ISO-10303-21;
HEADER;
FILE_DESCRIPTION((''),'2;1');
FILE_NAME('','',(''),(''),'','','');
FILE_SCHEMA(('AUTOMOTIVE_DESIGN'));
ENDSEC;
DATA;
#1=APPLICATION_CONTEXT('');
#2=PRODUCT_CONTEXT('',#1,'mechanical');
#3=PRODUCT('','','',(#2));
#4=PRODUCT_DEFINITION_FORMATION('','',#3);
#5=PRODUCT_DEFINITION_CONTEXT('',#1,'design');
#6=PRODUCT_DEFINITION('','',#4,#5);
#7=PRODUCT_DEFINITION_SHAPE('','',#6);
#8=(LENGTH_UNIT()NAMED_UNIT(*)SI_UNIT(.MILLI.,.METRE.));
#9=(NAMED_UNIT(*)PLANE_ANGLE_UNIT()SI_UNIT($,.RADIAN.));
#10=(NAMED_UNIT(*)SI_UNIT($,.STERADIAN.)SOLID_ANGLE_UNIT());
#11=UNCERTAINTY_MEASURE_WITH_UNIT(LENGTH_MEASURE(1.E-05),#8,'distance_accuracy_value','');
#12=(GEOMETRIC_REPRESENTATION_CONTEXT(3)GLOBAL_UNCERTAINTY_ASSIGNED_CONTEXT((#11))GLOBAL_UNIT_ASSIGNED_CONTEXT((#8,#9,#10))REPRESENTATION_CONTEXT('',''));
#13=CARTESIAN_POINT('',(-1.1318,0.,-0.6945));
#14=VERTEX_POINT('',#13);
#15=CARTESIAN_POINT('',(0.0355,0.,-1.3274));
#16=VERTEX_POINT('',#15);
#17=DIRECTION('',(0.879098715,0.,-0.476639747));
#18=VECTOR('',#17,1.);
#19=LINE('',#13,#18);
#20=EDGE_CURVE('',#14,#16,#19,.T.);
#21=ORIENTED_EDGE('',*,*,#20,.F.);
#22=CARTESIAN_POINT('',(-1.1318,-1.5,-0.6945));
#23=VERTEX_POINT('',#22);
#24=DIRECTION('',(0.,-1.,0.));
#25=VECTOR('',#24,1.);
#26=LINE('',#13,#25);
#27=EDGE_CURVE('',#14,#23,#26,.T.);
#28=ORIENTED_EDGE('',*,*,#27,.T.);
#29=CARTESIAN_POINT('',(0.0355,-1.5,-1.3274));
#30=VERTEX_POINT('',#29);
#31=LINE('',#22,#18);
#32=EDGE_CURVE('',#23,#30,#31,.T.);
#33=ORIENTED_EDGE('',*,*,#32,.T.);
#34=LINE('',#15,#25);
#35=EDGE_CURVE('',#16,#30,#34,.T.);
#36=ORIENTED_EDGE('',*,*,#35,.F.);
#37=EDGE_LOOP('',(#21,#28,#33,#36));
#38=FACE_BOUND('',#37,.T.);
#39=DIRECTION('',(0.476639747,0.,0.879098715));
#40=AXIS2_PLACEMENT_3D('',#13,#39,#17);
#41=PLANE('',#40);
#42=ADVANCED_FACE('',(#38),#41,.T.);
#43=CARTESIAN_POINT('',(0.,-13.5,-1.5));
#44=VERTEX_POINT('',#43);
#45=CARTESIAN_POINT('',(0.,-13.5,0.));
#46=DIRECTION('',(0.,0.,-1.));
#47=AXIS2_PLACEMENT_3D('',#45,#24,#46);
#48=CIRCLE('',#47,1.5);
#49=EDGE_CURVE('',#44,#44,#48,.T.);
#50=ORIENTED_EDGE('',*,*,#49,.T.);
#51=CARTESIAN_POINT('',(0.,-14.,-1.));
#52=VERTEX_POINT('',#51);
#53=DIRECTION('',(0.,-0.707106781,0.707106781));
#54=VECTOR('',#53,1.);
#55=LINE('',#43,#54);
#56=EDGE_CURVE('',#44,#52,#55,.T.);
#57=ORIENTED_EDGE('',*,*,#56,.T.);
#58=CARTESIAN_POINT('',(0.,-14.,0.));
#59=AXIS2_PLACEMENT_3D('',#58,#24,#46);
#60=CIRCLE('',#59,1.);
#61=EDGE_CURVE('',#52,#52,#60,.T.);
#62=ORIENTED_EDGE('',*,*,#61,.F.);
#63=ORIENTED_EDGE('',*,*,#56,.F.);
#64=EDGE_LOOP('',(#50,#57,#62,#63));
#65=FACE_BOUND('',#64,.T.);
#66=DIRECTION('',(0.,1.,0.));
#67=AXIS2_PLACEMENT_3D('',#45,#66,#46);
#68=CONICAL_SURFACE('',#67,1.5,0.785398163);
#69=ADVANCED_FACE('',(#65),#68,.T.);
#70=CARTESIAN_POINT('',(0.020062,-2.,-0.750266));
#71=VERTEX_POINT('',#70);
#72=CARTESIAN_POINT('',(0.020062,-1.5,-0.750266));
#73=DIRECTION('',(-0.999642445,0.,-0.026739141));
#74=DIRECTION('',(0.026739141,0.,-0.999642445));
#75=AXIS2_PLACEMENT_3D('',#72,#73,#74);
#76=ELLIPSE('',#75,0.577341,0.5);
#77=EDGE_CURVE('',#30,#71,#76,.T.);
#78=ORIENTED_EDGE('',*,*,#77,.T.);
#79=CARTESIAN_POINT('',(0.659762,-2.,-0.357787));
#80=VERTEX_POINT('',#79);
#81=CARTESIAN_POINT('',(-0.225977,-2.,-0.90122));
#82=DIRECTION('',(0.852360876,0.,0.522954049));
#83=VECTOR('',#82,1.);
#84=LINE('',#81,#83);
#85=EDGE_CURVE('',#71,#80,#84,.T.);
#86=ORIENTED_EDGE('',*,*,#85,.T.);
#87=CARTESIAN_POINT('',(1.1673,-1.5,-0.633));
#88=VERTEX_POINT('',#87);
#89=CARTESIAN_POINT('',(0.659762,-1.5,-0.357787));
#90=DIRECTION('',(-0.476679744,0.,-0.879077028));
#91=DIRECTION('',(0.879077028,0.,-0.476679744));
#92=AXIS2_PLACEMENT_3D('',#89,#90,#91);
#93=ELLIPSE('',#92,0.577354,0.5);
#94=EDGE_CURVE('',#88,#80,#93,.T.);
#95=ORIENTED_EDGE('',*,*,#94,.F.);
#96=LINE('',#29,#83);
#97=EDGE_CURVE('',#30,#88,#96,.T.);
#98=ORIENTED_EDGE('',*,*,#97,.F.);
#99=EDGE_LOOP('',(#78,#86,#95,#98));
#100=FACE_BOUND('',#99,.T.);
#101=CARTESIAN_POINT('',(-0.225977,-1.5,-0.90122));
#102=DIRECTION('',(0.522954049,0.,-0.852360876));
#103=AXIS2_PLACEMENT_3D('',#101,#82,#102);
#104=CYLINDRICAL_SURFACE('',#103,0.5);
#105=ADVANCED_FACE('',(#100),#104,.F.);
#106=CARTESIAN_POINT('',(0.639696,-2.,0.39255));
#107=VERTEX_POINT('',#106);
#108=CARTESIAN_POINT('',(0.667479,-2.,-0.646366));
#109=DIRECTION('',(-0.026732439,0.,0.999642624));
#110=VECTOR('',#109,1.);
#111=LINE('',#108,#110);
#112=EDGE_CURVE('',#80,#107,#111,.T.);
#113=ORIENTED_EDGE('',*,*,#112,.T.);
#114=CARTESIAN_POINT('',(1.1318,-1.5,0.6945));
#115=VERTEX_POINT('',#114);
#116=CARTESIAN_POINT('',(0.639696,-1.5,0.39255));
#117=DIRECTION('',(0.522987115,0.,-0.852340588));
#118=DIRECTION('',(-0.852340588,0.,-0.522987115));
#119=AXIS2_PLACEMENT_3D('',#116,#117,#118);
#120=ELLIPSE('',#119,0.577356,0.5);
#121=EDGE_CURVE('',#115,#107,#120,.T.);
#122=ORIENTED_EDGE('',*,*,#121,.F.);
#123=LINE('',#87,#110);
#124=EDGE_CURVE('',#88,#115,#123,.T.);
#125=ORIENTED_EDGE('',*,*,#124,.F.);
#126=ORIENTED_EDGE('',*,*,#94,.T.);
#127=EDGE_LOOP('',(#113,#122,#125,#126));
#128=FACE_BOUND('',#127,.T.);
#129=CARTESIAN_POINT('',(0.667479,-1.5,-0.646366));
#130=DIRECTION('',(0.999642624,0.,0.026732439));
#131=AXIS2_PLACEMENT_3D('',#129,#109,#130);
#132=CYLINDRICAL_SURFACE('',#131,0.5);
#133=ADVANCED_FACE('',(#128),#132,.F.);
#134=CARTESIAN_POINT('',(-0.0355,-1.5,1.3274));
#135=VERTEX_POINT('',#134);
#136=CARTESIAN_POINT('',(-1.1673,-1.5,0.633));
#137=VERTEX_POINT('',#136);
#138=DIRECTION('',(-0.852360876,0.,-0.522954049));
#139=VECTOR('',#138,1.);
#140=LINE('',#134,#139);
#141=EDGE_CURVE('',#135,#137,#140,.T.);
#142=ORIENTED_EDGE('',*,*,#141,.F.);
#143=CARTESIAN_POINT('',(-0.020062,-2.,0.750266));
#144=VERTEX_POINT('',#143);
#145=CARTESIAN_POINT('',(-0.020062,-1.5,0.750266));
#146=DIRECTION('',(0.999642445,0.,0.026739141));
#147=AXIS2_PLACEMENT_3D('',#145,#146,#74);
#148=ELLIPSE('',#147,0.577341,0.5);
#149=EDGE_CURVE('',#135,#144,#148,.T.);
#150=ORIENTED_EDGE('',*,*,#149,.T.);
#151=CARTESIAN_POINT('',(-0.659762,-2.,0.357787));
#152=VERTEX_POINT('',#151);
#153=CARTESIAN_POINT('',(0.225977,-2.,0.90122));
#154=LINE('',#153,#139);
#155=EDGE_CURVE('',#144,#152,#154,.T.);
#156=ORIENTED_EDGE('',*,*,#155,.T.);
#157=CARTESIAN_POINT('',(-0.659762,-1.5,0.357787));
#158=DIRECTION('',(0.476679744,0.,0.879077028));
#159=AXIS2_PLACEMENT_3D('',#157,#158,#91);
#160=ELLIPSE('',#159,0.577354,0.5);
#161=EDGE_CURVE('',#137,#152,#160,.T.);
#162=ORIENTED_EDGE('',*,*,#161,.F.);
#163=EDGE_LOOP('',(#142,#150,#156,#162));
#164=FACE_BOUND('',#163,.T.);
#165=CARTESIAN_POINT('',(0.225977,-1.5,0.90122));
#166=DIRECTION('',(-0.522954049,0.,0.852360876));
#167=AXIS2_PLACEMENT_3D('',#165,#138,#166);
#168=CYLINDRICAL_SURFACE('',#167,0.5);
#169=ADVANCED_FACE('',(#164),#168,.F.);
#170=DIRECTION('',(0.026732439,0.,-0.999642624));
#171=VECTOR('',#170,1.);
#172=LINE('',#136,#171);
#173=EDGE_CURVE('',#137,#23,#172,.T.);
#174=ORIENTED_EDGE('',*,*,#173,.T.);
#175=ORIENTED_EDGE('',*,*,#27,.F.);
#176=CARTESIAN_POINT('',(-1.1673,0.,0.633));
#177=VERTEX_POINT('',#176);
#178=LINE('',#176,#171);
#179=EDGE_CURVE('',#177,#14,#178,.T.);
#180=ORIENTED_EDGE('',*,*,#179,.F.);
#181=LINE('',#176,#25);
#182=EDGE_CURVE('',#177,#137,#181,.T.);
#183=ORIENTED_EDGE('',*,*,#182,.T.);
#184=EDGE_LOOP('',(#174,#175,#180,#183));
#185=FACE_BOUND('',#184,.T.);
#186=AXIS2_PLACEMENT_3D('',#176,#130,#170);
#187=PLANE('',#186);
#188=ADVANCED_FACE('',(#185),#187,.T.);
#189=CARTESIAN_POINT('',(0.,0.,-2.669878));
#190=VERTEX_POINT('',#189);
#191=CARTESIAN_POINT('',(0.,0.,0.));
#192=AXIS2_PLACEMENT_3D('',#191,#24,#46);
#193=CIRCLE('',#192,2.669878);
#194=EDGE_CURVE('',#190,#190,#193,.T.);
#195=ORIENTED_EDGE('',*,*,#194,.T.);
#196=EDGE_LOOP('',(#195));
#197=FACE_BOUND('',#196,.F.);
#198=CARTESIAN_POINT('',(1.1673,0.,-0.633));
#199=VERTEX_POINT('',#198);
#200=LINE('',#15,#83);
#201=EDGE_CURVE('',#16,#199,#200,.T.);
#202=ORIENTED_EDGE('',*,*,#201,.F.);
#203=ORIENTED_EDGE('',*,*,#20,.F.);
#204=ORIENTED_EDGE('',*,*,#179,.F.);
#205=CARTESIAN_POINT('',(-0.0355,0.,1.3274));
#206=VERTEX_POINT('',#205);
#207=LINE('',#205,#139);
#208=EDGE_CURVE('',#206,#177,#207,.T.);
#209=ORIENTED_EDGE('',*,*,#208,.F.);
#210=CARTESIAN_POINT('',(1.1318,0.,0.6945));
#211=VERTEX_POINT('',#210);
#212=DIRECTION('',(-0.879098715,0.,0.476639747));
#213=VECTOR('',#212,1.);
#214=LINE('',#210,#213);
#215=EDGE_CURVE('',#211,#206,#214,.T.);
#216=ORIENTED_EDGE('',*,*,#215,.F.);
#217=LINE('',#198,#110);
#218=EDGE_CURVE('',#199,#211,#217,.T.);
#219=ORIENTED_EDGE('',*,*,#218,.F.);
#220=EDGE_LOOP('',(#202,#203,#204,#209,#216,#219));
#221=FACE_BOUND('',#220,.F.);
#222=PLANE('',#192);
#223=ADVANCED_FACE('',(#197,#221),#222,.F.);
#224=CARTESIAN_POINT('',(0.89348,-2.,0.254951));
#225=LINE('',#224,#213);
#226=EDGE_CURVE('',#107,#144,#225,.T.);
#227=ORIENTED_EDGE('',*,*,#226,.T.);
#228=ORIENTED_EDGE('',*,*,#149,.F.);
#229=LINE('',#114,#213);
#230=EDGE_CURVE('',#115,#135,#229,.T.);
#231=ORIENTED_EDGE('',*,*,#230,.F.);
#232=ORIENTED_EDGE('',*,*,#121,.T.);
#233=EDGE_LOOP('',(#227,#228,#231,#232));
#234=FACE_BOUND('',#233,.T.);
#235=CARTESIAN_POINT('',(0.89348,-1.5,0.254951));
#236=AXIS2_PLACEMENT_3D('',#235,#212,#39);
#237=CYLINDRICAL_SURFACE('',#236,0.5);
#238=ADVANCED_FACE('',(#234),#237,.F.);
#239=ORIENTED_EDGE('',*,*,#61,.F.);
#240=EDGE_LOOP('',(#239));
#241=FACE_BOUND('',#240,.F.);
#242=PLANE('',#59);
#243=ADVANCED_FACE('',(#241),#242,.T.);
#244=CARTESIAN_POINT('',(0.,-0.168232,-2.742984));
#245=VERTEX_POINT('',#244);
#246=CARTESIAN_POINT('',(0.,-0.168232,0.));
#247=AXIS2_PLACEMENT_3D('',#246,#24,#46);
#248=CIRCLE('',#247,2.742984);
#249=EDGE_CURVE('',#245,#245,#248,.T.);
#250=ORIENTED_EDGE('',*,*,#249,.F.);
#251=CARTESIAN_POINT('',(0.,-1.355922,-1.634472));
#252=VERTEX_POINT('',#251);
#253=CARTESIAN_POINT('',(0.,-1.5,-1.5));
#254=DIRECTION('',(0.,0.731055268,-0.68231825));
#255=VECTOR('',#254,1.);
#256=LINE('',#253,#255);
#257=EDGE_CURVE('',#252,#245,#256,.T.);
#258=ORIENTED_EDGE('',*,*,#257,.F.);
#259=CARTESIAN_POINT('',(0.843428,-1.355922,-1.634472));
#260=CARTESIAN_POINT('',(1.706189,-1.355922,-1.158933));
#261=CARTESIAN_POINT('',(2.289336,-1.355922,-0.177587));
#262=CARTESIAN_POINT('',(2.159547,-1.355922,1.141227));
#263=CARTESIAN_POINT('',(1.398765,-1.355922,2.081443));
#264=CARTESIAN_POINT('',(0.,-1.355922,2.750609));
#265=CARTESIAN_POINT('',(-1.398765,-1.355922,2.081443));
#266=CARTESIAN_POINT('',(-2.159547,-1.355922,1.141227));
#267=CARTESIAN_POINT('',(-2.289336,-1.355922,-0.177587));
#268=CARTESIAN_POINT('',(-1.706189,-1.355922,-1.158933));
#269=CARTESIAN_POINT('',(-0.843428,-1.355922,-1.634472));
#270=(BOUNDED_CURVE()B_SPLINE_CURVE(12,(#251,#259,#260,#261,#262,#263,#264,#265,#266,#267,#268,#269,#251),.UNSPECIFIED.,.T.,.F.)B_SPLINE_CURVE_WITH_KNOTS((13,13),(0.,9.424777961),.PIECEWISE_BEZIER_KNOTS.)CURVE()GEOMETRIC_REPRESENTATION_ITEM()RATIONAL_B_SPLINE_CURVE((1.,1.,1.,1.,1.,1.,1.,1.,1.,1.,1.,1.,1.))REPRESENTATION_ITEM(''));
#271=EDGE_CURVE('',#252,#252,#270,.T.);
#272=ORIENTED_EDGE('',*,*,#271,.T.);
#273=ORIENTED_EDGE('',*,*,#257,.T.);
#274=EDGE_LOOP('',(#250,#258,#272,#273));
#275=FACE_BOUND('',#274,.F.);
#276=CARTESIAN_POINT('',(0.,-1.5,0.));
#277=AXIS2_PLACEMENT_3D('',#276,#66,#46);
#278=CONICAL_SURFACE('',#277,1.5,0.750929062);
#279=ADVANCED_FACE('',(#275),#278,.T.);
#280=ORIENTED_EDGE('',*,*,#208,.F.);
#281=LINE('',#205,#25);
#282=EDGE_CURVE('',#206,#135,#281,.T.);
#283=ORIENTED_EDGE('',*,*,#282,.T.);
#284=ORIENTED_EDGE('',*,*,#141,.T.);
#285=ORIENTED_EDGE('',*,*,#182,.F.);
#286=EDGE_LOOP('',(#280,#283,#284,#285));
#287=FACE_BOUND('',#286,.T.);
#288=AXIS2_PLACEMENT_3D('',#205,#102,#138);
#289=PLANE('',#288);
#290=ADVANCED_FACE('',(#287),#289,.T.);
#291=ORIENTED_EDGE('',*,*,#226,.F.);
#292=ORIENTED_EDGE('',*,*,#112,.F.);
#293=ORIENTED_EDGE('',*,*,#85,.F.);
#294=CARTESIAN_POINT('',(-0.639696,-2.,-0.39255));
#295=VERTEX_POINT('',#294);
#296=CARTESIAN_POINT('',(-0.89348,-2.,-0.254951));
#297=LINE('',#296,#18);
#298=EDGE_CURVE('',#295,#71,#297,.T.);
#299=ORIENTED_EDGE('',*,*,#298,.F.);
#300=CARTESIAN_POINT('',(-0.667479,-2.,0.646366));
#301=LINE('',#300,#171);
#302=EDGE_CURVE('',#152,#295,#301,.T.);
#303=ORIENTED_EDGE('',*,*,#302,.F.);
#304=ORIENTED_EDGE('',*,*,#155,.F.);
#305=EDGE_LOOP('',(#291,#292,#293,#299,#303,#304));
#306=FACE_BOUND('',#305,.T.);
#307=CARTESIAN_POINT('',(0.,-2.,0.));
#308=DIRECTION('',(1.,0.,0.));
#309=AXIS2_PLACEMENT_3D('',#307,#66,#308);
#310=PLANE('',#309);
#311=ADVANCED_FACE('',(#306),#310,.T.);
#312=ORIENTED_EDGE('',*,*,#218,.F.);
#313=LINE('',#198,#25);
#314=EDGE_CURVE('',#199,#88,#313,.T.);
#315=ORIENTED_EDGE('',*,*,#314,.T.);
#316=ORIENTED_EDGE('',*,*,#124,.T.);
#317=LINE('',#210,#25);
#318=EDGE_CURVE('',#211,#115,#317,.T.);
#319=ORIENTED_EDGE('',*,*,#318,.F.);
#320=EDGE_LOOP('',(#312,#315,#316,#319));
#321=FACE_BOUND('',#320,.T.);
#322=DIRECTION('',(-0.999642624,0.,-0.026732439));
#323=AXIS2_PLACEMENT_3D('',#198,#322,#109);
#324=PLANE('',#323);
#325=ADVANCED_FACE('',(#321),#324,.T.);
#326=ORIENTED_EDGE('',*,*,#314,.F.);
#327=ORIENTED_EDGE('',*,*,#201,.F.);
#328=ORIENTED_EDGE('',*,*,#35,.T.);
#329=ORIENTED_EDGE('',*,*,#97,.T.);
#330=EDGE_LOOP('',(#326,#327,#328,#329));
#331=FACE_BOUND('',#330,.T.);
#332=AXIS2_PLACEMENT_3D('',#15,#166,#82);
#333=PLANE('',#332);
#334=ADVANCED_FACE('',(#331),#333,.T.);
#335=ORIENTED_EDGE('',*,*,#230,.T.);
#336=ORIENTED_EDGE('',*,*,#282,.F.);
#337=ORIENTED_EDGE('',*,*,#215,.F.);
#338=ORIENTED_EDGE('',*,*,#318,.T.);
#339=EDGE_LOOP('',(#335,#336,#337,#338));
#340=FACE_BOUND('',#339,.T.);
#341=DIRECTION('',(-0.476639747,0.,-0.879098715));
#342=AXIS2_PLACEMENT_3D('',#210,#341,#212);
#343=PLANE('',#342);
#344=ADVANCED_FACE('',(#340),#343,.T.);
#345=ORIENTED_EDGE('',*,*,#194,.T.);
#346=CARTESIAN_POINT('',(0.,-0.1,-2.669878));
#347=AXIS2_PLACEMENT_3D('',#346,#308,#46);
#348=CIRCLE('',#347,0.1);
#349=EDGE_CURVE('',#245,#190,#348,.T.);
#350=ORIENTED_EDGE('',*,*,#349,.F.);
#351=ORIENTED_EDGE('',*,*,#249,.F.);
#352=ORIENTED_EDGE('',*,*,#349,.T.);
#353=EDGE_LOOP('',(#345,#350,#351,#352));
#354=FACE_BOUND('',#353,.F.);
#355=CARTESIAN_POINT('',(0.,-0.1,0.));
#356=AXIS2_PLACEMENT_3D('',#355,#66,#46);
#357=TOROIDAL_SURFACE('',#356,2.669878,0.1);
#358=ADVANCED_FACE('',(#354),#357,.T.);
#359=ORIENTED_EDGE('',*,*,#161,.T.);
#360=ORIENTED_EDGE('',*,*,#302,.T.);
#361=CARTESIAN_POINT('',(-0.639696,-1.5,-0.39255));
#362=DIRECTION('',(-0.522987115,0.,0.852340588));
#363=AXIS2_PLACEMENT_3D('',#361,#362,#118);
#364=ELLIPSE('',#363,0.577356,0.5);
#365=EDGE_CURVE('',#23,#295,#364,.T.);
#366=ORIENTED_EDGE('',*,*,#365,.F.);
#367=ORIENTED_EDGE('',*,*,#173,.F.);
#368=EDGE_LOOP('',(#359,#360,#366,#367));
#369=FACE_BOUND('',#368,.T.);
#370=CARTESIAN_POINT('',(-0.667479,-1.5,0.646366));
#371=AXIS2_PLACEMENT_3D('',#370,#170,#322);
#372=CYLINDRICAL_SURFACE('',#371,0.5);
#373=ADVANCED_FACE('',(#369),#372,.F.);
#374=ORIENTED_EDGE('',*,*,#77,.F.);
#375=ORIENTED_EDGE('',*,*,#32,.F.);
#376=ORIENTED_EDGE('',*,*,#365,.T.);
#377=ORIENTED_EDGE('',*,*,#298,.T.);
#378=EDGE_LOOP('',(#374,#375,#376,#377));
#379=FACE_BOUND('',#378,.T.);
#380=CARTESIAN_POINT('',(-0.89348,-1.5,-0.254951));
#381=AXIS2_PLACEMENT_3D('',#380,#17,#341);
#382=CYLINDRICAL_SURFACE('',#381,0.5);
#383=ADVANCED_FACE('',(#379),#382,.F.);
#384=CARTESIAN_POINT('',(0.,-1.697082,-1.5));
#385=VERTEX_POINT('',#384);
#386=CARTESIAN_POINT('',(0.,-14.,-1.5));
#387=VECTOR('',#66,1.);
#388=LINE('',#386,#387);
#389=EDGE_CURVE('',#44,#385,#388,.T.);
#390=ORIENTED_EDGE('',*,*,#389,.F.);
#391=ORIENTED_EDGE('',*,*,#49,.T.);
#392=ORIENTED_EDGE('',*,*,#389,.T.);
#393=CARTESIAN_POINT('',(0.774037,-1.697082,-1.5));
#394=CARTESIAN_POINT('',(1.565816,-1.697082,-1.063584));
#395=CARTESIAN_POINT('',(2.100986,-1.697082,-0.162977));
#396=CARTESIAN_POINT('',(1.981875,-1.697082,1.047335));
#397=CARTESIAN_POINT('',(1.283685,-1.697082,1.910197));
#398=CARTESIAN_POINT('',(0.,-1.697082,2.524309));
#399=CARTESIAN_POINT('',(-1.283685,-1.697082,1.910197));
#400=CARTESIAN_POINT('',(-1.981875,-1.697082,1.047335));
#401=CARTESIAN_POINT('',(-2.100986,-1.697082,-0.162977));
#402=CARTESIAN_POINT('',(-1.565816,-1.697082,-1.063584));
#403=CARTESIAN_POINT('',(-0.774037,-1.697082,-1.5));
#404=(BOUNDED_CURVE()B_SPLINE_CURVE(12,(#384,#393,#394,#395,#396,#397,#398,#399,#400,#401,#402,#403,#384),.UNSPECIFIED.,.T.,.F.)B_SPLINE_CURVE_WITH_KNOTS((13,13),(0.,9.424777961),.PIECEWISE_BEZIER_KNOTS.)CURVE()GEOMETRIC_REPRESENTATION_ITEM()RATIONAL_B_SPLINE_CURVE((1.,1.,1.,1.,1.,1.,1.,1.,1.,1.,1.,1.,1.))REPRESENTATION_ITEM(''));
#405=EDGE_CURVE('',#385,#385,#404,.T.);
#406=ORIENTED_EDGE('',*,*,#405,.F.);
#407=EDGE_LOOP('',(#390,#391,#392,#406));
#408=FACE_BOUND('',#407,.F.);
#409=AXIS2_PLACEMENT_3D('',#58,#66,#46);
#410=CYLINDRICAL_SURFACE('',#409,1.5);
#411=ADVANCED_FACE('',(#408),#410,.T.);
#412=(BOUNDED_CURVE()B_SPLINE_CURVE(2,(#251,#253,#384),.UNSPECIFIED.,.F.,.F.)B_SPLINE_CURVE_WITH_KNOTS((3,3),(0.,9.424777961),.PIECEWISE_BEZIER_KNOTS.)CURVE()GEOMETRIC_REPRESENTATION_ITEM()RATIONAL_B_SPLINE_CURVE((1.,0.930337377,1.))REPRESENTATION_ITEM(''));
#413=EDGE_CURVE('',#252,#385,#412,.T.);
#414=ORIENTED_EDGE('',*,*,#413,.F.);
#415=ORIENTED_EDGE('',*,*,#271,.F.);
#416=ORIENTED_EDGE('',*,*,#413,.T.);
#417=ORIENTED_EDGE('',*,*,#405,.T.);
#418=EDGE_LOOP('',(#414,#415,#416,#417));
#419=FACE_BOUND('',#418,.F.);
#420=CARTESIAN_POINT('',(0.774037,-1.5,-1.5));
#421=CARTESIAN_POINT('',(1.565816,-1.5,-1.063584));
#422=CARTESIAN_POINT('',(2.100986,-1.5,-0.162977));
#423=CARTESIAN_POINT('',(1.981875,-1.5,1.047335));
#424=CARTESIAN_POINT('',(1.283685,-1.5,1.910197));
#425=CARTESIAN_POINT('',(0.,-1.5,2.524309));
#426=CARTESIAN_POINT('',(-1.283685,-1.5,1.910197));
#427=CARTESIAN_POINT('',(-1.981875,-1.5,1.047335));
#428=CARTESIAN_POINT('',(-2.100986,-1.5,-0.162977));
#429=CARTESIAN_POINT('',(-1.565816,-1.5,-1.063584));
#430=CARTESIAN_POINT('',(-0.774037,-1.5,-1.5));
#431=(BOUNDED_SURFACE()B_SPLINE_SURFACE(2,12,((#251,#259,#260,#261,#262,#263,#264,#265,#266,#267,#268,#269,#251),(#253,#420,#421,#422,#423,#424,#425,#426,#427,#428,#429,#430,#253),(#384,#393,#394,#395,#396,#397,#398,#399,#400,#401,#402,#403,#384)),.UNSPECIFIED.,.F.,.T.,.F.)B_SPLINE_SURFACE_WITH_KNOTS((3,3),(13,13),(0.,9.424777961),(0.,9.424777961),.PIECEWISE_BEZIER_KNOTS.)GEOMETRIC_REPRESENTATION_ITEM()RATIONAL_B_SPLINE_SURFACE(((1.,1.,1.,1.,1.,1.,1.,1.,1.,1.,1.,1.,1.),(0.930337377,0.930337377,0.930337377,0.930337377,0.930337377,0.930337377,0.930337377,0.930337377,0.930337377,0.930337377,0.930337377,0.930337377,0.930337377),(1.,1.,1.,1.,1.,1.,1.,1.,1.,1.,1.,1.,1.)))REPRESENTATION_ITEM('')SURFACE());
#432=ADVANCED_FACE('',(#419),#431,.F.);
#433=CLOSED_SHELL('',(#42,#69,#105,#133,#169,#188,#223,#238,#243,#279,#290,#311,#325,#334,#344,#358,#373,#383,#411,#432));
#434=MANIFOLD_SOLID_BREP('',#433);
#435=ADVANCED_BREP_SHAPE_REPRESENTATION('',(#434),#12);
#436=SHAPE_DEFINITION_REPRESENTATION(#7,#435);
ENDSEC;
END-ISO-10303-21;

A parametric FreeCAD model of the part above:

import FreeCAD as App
import Part
import Sketcher
from FreeCAD import Vector
Q = App.Units.Quantity


def edges_at(feature, points):
    """Names of the edges that pass closest to the given points."""
    edges = feature.Shape.Edges
    near = lambda p: min(range(len(edges)), key=lambda i: edges[i].distToShape(Part.Vertex(*p))[0])
    return sorted({f"Edge{near(p) + 1}" for p in points})


def add_polygon(sketch, points):
    """Adds a closed chain of lines whose ends are joined by coincident constraints."""
    first, n = sketch.GeometryCount, len(points)
    for a, b in zip(points, points[1:] + points[:1]):
        sketch.addGeometry(Part.LineSegment(App.Vector(*a, 0), App.Vector(*b, 0)), False)
    for i in range(n):
        sketch.addConstraint(Sketcher.Constraint("Coincident", first + i, 2, first + (i + 1) % n, 1))

doc = App.newDocument("Part")
body = doc.addObject("PartDesign::Body", "Body")

# Sketch on YZ plane
sketch1 = body.newObject("Sketcher::SketchObject", "Sketch")
sketch1.AttachmentSupport = (doc.getObject("YZ_Plane"), [""])
sketch1.MapMode = "FlatFace"
add_polygon(sketch1, [(-1.5, -1.5), (0, -2.9), (0, 0), (-14, 0), (-14, -1.5)])  # lines 0-4
sketch1.addConstraint([
    Sketcher.Constraint("Vertical", 1),
    Sketcher.Constraint("Horizontal", 2),
    Sketcher.Constraint("Vertical", 3),
    Sketcher.Constraint("Horizontal", 4),
    Sketcher.Constraint("Coincident", 1, 2, -1, 1),
    Sketcher.Constraint("DistanceX", 2, 2, 2, 1, 14.0),
    Sketcher.Constraint("DistanceY", 3, 2, 3, 1, 1.5),
    Sketcher.Constraint("DistanceX", 4, 2, -1, 1, 1.5),
    Sketcher.Constraint("DistanceY", 1, 1, 1, 2, 2.9),
])
revolution = body.newObject("PartDesign::Revolution", "Revolution")
revolution.Profile = sketch1
revolution.ReferenceAxis = (sketch1, ["H_Axis"])
revolution.Angle = 360

# Sketch on XZ plane
sketch2 = body.newObject("Sketcher::SketchObject", "Sketch001")
sketch2.AttachmentSupport = (doc.getObject("XZ_Plane"), [""])
sketch2.MapMode = "FlatFace"
add_polygon(sketch2, [(-1.1318, -0.6945), (-1.1673, 0.633), (-0.0355, 1.3274), (1.1318, 0.6945), (1.1673, -0.633), (0.0355, -1.3274)])  # lines 0-5
sketch2.addConstraint([
    Sketcher.Constraint("Symmetric", 0, 2, 3, 2, -1, 1),
    Sketcher.Constraint("Symmetric", 1, 2, 4, 2, -1, 1),
    Sketcher.Constraint("Symmetric", 2, 2, 5, 2, -1, 1),
    Sketcher.Constraint("Equal", 0, 1),
    Sketcher.Constraint("Equal", 1, 2),
    Sketcher.Constraint("Angle", 1, Q("31.5306 deg")),
    Sketcher.Constraint("Distance", 0, 1.328),
    Sketcher.Constraint("DistanceY", -1, 1, 0, 2, 0.633),
    Sketcher.Constraint("DistanceY", 2, 2, 1, 2, 0.633),
])
pocket1 = body.newObject("PartDesign::Pocket", "Pocket")
pocket1.Profile = sketch2
pocket1.Length = 2
pocket1.Reversed = True
doc.recompute()

fillet = body.newObject("PartDesign::Fillet", "Fillet")
fillet.Base = (pocket1, edges_at(pocket1, [
    (-1.15, -2, -0.031),
    (-0.601, -2, 0.98),
    (-0.548, -2, -1.011),
    (0.601, -2, -0.98),
    (0.548, -2, 1.011),
    (1.15, -2, 0.031),
]))
fillet.Radius = 0.5
doc.recompute()

fillet2 = body.newObject("PartDesign::Fillet", "Fillet001")
fillet2.Base = (fillet, edges_at(fillet, [(0, -1.5, 1.5)]))
fillet2.Radius = 0.5
doc.recompute()

fillet3 = body.newObject("PartDesign::Fillet", "Fillet002")
fillet3.Base = (fillet2, edges_at(fillet2, [(0, 0, 2.9)]))
fillet3.Radius = 0.1
doc.recompute()

chamfer = body.newObject("PartDesign::Chamfer", "Chamfer")
chamfer.Base = (fillet3, edges_at(fillet3, [(0, -14, 1.5)]))
chamfer.Size = 0.5

doc.recompute()
